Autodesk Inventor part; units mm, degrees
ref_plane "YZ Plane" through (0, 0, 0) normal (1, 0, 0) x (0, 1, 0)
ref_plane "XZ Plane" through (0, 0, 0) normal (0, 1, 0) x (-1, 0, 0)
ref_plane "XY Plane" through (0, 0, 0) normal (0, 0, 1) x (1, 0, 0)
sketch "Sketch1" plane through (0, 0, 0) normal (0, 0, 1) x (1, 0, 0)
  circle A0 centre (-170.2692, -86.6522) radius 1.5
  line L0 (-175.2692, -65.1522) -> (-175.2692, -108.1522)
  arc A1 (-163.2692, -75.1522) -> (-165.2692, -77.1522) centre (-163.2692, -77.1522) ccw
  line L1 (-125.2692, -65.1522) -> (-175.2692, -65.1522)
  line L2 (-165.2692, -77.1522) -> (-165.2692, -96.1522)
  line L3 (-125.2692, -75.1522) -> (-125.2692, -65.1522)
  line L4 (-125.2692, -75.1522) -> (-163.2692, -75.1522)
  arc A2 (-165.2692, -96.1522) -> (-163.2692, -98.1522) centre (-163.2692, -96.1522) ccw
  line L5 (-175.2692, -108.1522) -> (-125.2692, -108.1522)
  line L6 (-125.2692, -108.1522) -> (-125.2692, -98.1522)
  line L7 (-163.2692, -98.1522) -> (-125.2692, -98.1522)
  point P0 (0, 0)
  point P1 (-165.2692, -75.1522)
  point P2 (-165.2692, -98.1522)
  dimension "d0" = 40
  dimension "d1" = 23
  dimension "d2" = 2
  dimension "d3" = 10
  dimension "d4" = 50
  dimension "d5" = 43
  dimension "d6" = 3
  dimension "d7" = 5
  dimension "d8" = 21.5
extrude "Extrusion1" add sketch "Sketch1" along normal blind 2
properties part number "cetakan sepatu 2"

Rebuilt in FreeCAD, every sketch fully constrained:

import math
import FreeCAD as App
import Part
import Sketcher

V = App.Vector
Q = App.Units.Quantity

doc = App.newDocument("Part")
body = doc.addObject("PartDesign::Body", "Body")

sketch1 = body.newObject("Sketcher::SketchObject", "Sketch")
sketch1.AttachmentSupport = (doc.getObject("XY_Plane"), [""])
sketch1.MapMode = "FlatFace"
sketch1.addGeometry([
    Part.LineSegment(V(-125.3, -65.2, 0), V(-175.3, -65.2, 0)),
    Part.LineSegment(V(-175.3, -65.2, 0), V(-175.3, -108.2, 0)),
    Part.LineSegment(V(-175.3, -108.2, 0), V(-125.3, -108.2, 0)),
    Part.LineSegment(V(-125.3, -108.2, 0), V(-125.3, -98.2, 0)),
    Part.LineSegment(V(-125.3, -98.2, 0), V(-163.3, -98.2, 0)),
    Part.ArcOfCircle(Part.Circle(V(-163.3, -96.2, 0), V(0, 0, 1), 2), math.radians(180), math.radians(270)),
    Part.LineSegment(V(-165.3, -96.2, 0), V(-165.3, -77.2, 0)),
    Part.ArcOfCircle(Part.Circle(V(-163.3, -77.2, 0), V(0, 0, 1), 2), math.radians(90), math.radians(180)),
    Part.LineSegment(V(-163.3, -75.2, 0), V(-125.3, -75.2, 0)),
    Part.LineSegment(V(-125.3, -75.2, 0), V(-125.3, -65.2, 0)),
    Part.Circle(V(-170.3, -86.7, 0), V(0, 0, 1), 1.5),
], False)
sketch1.addConstraint([
    Sketcher.Constraint("Coincident", 0, 2, 1, 1),
    Sketcher.Constraint("Coincident", 1, 2, 2, 1),
    Sketcher.Constraint("Coincident", 2, 2, 3, 1),
    Sketcher.Constraint("Coincident", 3, 2, 4, 1),
    Sketcher.Constraint("Tangent", 4, 2, 5, 2),
    Sketcher.Constraint("Tangent", 5, 1, 6, 1),
    Sketcher.Constraint("Tangent", 6, 2, 7, 2),
    Sketcher.Constraint("Tangent", 7, 1, 8, 1),
    Sketcher.Constraint("Coincident", 8, 2, 9, 1),
    Sketcher.Constraint("Coincident", 9, 2, 0, 1),
    Sketcher.Constraint("Horizontal", 0),
    Sketcher.Constraint("Vertical", 1),
    Sketcher.Constraint("Horizontal", 2),
    Sketcher.Constraint("Vertical", 3),
    Sketcher.Constraint("Horizontal", 4),
    Sketcher.Constraint("Vertical", 6),
    Sketcher.Constraint("Horizontal", 8),
    Sketcher.Constraint("Vertical", 9),
    Sketcher.Constraint("Equal", 5, 7),
    Sketcher.Constraint("Vertical", 3, 2, 8, 2),
    Sketcher.Constraint("Equal", 3, 9),
    Sketcher.Constraint("Diameter", 10, Q("3 mm")),
    Sketcher.Constraint("Radius", 5, Q("2 mm")),
    Sketcher.Constraint("DistanceX", 0, 2, 0, 1, Q("50 mm")),
    Sketcher.Constraint("DistanceY", 1, 2, 1, 1, Q("43 mm")),
    Sketcher.Constraint("DistanceY", 3, 1, 3, 2, Q("10 mm")),
    Sketcher.Constraint("DistanceX", 0, 2, 10, 3, Q("5 mm")),
    Sketcher.Constraint("DistanceX", 10, 3, 5, 1, Q("5 mm")),
    Sketcher.Constraint("DistanceY", 10, 3, 0, 2, Q("21.5 mm")),
    Sketcher.Constraint("DistanceX", 5, 3, -1, 1, Q("163.2692 mm")),
    Sketcher.Constraint("DistanceY", 5, 3, -1, 1, Q("96.1522 mm")),
])
pad1 = body.newObject("PartDesign::Pad", "Pad")
pad1.Profile = sketch1
pad1.Length = 2

doc.recompute()
